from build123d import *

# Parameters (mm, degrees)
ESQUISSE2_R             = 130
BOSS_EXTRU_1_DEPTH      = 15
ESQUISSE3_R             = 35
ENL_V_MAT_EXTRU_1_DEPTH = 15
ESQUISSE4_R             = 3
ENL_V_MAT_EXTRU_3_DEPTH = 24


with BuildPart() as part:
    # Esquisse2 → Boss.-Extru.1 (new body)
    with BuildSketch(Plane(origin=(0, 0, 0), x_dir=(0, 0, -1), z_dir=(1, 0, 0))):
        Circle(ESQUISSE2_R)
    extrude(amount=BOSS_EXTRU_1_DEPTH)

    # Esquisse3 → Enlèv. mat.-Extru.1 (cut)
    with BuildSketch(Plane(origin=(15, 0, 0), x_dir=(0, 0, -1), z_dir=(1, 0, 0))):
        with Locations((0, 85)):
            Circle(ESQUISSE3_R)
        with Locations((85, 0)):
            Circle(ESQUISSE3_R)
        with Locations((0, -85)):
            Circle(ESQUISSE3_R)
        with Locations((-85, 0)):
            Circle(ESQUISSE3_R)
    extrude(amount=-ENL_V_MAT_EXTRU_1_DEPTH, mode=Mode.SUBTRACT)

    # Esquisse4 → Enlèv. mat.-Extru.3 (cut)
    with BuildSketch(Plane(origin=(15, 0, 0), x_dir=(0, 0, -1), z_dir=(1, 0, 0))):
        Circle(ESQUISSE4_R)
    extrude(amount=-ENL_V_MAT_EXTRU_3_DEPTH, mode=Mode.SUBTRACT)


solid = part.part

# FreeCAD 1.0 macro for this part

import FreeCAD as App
import Part
import Sketcher
Q = App.Units.Quantity

doc = App.newDocument("Part")
params = doc.addObject("Spreadsheet::Sheet", "Params")
for row, (alias, value) in enumerate([
    ("sketch1_diameter", "260 mm"),
    ("pad1_length", "15 mm"),
    ("sketch2_diameter", "70 mm"),
    ("pocket1_length", "15 mm"),
    ("sketch3_diameter", "6 mm"),
    ("pocket2_length", "24 mm"),
], start=1):
    params.set(f"A{row}", alias)
    params.set(f"B{row}", "=" + value)
    params.setAlias(f"B{row}", alias)

body = doc.addObject("PartDesign::Body", "Body")

# Sketch on YZ plane
sketch1 = body.newObject("Sketcher::SketchObject", "Sketch")
sketch1.AttachmentSupport = (doc.getObject("YZ_Plane"), [""])
sketch1.MapMode = "FlatFace"
sketch1.addGeometry(Part.Circle(App.Vector(0, 0, 0), App.Vector(0, 0, 1), 130), False)
sketch1.addConstraint([
    Sketcher.Constraint("Coincident", 0, 3, -1, 1),
    Sketcher.Constraint("Diameter", 0, Q("260 mm")),
])
sketch1.setExpression("Constraints[1]", "Params.sketch1_diameter")
pad1 = body.newObject("PartDesign::Pad", "Pad")
pad1.Profile = sketch1
pad1.setExpression("Length", "Params.pad1_length")

# Sketch on YZ plane
sketch2 = body.newObject("Sketcher::SketchObject", "Sketch001")
sketch2.AttachmentSupport = (doc.getObject("YZ_Plane"), [""])
sketch2.MapMode = "FlatFace"
sketch2.AttachmentOffset = App.Placement(App.Vector(0, 0, 15), App.Rotation())
sketch2.addGeometry([
    Part.Circle(App.Vector(85, 0, 0), App.Vector(0, 0, 1), 35),
    Part.Circle(App.Vector(0, -85, 0), App.Vector(0, 0, 1), 35),
    Part.Circle(App.Vector(-85, 0, 0), App.Vector(0, 0, 1), 35),
    Part.Circle(App.Vector(0, 85, 0), App.Vector(0, 0, 1), 35),
], False)
sketch2.addConstraint([
    Sketcher.Constraint("Equal", 0, 1),
    Sketcher.Constraint("Equal", 1, 2),
    Sketcher.Constraint("Equal", 2, 3),
    Sketcher.Constraint("Symmetric", 0, 3, 2, 3, -1, 1),
    Sketcher.Constraint("Symmetric", 1, 3, 3, 3, -1, 1),
    Sketcher.Constraint("PointOnObject", 0, 3, -1),
    Sketcher.Constraint("PointOnObject", 1, 3, -2),
    Sketcher.Constraint("Diameter", 0, Q("70 mm")),
    Sketcher.Constraint("DistanceX", -1, 1, 0, 3, Q("85 mm")),
    Sketcher.Constraint("DistanceY", 1, 3, -1, 1, Q("85 mm")),
])
sketch2.setExpression("Constraints[7]", "Params.sketch2_diameter")
pocket1 = body.newObject("PartDesign::Pocket", "Pocket")
pocket1.Profile = sketch2
pocket1.setExpression("Length", "Params.pocket1_length")

# Sketch on YZ plane
sketch3 = body.newObject("Sketcher::SketchObject", "Sketch002")
sketch3.AttachmentSupport = (doc.getObject("YZ_Plane"), [""])
sketch3.MapMode = "FlatFace"
sketch3.AttachmentOffset = App.Placement(App.Vector(0, 0, 15), App.Rotation())
sketch3.addGeometry(Part.Circle(App.Vector(0, 0, 0), App.Vector(0, 0, 1), 3), False)
sketch3.addConstraint([
    Sketcher.Constraint("Coincident", 0, 3, -1, 1),
    Sketcher.Constraint("Diameter", 0, Q("6 mm")),
])
sketch3.setExpression("Constraints[1]", "Params.sketch3_diameter")
pocket2 = body.newObject("PartDesign::Pocket", "Pocket001")
pocket2.Profile = sketch3
pocket2.setExpression("Length", "Params.pocket2_length")

doc.recompute()
